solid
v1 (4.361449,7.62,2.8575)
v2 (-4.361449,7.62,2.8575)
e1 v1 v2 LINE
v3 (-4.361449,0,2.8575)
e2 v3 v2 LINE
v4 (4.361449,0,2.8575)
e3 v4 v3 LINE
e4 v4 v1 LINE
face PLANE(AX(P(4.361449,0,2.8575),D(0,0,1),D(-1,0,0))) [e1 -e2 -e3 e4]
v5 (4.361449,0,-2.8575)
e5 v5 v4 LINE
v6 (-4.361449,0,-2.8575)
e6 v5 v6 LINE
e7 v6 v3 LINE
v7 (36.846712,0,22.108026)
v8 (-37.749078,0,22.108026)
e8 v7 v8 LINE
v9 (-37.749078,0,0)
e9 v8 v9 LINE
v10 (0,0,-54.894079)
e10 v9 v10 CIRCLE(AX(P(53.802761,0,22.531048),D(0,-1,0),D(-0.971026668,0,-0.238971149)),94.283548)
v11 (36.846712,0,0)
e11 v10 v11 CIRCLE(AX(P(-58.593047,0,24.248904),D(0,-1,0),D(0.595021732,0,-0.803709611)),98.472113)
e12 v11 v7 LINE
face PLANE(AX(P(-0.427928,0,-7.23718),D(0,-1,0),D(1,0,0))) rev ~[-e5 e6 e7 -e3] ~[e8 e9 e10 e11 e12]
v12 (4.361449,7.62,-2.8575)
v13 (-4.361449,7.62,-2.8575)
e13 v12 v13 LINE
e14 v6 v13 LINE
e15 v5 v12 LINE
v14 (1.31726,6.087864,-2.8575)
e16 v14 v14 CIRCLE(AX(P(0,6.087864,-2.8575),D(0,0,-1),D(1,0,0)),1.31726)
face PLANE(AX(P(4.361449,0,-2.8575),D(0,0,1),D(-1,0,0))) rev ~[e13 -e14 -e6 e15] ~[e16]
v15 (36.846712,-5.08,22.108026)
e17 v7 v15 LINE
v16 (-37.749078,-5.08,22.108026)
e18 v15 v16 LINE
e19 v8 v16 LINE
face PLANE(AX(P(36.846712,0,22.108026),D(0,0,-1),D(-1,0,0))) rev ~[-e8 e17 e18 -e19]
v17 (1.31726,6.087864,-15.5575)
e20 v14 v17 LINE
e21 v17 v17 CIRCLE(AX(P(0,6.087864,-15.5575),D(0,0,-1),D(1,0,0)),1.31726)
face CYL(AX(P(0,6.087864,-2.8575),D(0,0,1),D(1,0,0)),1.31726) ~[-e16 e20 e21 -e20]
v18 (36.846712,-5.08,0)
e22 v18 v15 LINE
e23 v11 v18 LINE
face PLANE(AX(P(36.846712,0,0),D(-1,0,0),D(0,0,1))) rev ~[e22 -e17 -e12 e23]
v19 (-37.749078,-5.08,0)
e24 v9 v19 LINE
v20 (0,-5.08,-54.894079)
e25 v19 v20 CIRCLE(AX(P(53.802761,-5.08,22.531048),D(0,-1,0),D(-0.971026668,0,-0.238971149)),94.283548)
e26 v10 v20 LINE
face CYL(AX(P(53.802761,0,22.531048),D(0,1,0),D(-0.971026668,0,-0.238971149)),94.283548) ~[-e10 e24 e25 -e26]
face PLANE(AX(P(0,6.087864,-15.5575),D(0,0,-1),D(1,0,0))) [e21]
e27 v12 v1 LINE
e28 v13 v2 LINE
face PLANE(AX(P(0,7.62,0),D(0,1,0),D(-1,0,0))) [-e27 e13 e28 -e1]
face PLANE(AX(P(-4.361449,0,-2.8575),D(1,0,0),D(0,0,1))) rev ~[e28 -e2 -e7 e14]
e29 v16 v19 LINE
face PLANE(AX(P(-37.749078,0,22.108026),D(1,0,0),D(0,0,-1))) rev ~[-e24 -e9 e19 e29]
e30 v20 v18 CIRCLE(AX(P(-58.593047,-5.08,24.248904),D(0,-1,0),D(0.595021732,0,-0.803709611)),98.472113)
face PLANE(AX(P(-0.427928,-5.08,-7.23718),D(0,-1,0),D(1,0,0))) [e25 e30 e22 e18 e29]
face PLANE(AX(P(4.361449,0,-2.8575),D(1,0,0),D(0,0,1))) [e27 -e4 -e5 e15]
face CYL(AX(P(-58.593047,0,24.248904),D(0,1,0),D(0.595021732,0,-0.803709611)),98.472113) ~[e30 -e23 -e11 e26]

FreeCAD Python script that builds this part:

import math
import FreeCAD as App
import Part
import Sketcher
Q = App.Units.Quantity

doc = App.newDocument("Part")
params = doc.addObject("Spreadsheet::Sheet", "Params")
for row, (alias, value) in enumerate([
    ("pad1_length", "0.2 in"),
    ("sketch2_height", "0.225 in"),
    ("pad2_length", "0.3 in"),
    ("pad3_length", "0.5 in"),
], start=1):
    params.set(f"A{row}", alias)
    params.set(f"B{row}", "=" + value)
    params.setAlias(f"B{row}", alias)

body = doc.addObject("PartDesign::Body", "Body")

# Sketch on XZ plane
sketch1 = body.newObject("Sketcher::SketchObject", "Sketch")
sketch1.AttachmentSupport = (doc.getObject("XZ_Plane"), [""])
sketch1.MapMode = "FlatFace"
sketch1.addGeometry([
    Part.ArcOfCircle(Part.Circle(App.Vector(54, 23, 0), App.Vector(0, 0, 1), 94), math.radians(-166), math.radians(-125)),  # 0
    Part.ArcOfCircle(Part.Circle(App.Vector(-59, 24, 0), App.Vector(0, 0, 1), 98), math.radians(-53), math.radians(-14)),  # 1
    Part.LineSegment(App.Vector(37, 0, 0), App.Vector(37, 22, 0)),  # 2
    Part.LineSegment(App.Vector(37, 22, 0), App.Vector(-38, 22, 0)),  # 3
    Part.LineSegment(App.Vector(-38, 22, 0), App.Vector(-38, 0, 0)),  # 4
], False)
sketch1.addConstraint([
    Sketcher.Constraint("Coincident", 0, 2, 1, 1),
    Sketcher.Constraint("Coincident", 1, 2, 2, 1),
    Sketcher.Constraint("Coincident", 2, 2, 3, 1),
    Sketcher.Constraint("Coincident", 3, 2, 4, 1),
    Sketcher.Constraint("Coincident", 4, 2, 0, 1),
    Sketcher.Constraint("Vertical", 2),
    Sketcher.Constraint("Horizontal", 3),
    Sketcher.Constraint("Vertical", 4),
    Sketcher.Constraint("PointOnObject", 0, 2, -2),
    Sketcher.Constraint("PointOnObject", 1, 2, -1),
    Sketcher.Constraint("PointOnObject", 4, 2, -1),
    Sketcher.Constraint("Radius", 0, 94.283548),
    Sketcher.Constraint("Radius", 1, 98.472113),
    Sketcher.Constraint("DistanceX", 3, 2, 3, 1, 74.59579),
    Sketcher.Constraint("DistanceY", 2, 1, 2, 2, 22.108026),
    Sketcher.Constraint("DistanceX", -1, 1, 0, 3, 53.802761),
    Sketcher.Constraint("DistanceY", 0, 2, -1, 1, 54.894079),
])
pad1 = body.newObject("PartDesign::Pad", "Pad")
pad1.Profile = sketch1
pad1.setExpression("Length", "Params.pad1_length")

# Sketch on XZ plane
sketch2 = body.newObject("Sketcher::SketchObject", "Sketch001")
sketch2.AttachmentSupport = (doc.getObject("XZ_Plane"), [""])
sketch2.MapMode = "FlatFace"
sketch2.addGeometry([
    Part.LineSegment(App.Vector(4, 3, 0), App.Vector(4, -3, 0)),
    Part.LineSegment(App.Vector(4, -3, 0), App.Vector(-4, -3, 0)),
    Part.LineSegment(App.Vector(-4, -3, 0), App.Vector(-4, 3, 0)),
    Part.LineSegment(App.Vector(-4, 3, 0), App.Vector(4, 3, 0)),
], False)
sketch2.addConstraint([
    Sketcher.Constraint("Coincident", 0, 2, 1, 1),
    Sketcher.Constraint("Coincident", 1, 2, 2, 1),
    Sketcher.Constraint("Coincident", 2, 2, 3, 1),
    Sketcher.Constraint("Coincident", 3, 2, 0, 1),
    Sketcher.Constraint("Vertical", 0),
    Sketcher.Constraint("Horizontal", 1),
    Sketcher.Constraint("Vertical", 2),
    Sketcher.Constraint("Horizontal", 3),
    Sketcher.Constraint("Symmetric", 0, 2, 2, 2, -1, 1),
    Sketcher.Constraint("DistanceY", 0, 2, 0, 1, Q("0.225 in")),
    Sketcher.Constraint("DistanceX", 1, 2, 1, 1, 8.722898),
])
sketch2.setExpression("Constraints[9]", "Params.sketch2_height")
pad2 = body.newObject("PartDesign::Pad", "Pad001")
pad2.Profile = sketch2
pad2.setExpression("Length", "Params.pad2_length")
pad2.Reversed = True

# Sketch on XY plane
sketch3 = body.newObject("Sketcher::SketchObject", "Sketch002")
sketch3.AttachmentSupport = (doc.getObject("XY_Plane"), [""])
sketch3.MapMode = "FlatFace"
sketch3.AttachmentOffset = App.Placement(App.Vector(0, 0, -0.1125 * 25.4), App.Rotation())
sketch3.addGeometry(Part.Circle(App.Vector(0, 6.1, 0), App.Vector(0, 0, 1), 1.3), False)
sketch3.addConstraint([
    Sketcher.Constraint("PointOnObject", 0, 3, -2),
    Sketcher.Constraint("Diameter", 0, 2.63452),
    Sketcher.Constraint("DistanceY", -1, 1, 0, 3, 6.087864),
])
pad3 = body.newObject("PartDesign::Pad", "Pad002")
pad3.Profile = sketch3
pad3.setExpression("Length", "Params.pad3_length")
pad3.Reversed = True

doc.recompute()
